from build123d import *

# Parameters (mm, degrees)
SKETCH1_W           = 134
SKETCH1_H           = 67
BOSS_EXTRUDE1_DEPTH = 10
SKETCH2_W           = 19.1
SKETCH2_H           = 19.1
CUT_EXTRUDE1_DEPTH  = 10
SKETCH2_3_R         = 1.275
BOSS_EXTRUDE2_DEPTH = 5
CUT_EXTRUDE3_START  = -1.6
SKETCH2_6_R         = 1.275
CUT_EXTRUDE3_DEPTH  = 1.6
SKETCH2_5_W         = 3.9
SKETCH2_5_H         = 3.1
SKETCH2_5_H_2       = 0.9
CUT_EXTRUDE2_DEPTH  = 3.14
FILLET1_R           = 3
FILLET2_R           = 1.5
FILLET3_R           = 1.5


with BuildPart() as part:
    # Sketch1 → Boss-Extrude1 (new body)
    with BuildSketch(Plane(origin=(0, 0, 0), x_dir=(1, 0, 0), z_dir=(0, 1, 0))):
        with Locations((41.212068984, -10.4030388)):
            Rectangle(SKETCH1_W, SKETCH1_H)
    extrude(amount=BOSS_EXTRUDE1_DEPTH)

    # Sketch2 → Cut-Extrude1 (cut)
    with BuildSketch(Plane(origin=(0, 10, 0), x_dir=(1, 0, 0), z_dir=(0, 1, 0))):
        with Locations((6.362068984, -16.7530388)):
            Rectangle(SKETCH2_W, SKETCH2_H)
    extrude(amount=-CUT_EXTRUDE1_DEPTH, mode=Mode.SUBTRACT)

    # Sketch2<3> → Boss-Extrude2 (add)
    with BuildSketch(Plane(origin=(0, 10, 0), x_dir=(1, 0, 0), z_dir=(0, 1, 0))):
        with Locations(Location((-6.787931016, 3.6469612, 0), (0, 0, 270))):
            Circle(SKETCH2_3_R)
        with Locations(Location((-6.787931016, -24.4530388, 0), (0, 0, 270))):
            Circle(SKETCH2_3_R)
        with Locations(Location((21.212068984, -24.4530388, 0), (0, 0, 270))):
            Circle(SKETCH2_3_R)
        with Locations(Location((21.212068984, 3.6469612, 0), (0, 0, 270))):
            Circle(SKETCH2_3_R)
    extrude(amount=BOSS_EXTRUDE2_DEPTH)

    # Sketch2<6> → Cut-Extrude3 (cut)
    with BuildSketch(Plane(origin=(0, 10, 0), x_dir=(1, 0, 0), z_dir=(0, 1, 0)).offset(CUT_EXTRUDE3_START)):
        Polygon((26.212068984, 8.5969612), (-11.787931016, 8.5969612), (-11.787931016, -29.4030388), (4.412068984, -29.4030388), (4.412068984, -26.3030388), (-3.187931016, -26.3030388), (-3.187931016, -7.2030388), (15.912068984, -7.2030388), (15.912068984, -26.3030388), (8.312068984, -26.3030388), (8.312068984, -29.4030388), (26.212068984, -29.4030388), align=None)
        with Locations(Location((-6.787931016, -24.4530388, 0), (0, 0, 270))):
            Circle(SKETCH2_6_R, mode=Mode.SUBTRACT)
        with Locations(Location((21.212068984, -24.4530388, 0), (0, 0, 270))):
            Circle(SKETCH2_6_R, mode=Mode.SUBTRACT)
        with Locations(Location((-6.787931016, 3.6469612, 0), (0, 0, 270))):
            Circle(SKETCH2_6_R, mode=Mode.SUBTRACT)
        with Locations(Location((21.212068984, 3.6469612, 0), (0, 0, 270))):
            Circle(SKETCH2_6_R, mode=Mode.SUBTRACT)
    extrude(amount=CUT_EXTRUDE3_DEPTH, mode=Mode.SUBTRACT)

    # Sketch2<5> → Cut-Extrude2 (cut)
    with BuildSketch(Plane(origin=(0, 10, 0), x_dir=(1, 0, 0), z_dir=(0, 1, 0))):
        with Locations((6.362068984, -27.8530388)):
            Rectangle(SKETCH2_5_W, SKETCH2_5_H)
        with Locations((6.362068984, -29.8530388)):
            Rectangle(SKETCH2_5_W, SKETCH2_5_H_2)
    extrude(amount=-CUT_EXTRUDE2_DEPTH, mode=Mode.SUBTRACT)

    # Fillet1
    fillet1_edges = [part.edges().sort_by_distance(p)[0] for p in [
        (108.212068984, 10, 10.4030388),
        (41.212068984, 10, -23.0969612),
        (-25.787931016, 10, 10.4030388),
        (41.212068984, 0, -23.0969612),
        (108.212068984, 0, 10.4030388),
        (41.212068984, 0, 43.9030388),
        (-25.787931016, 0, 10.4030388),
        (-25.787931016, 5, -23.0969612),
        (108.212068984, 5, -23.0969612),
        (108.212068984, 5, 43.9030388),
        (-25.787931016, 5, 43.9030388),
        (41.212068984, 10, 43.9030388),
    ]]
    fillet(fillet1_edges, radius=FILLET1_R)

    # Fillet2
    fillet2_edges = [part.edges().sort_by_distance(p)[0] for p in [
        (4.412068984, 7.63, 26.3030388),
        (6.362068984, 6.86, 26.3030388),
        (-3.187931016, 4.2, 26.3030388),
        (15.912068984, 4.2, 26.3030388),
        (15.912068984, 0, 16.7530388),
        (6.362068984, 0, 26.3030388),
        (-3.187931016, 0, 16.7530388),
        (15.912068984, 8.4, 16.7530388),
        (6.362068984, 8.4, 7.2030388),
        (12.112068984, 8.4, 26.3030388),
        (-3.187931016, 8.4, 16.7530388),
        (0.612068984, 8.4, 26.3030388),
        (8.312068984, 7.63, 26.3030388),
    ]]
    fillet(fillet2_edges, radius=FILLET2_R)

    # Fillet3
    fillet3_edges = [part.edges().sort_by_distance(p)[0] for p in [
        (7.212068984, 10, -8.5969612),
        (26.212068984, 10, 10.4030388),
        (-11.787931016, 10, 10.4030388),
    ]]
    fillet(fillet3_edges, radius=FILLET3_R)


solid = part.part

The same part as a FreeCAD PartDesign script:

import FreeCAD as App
import Part
import Sketcher
from FreeCAD import Vector
Q = App.Units.Quantity


def edges_at(feature, points):
    """Names of the edges that pass closest to the given points."""
    edges = feature.Shape.Edges
    near = lambda p: min(range(len(edges)), key=lambda i: edges[i].distToShape(Part.Vertex(*p))[0])
    return sorted({f"Edge{near(p) + 1}" for p in points})


def add_polygon(sketch, points):
    """Adds a closed chain of lines whose ends are joined by coincident constraints."""
    first, n = sketch.GeometryCount, len(points)
    for a, b in zip(points, points[1:] + points[:1]):
        sketch.addGeometry(Part.LineSegment(App.Vector(*a, 0), App.Vector(*b, 0)), False)
    for i in range(n):
        sketch.addConstraint(Sketcher.Constraint("Coincident", first + i, 2, first + (i + 1) % n, 1))

doc = App.newDocument("Part")
params = doc.addObject("Spreadsheet::Sheet", "Params")
for row, (alias, value) in enumerate([
    ("sketch1_width", "134 mm"),
    ("sketch1_height", "67 mm"),
    ("pad1_length", "10 mm"),
    ("sketch2_width", "19.1 mm"),
    ("pocket1_length", "10 mm"),
    ("sketch3_diameter", "2.55 mm"),
    ("pad2_length", "5 mm"),
    ("sketch4_diameter", "2.55 mm"),
    ("sketch4_width", "38 mm"),
    ("sketch4_width2", "16.2 mm"),
    ("sketch4_width3", "7.6 mm"),
    ("sketch4_width4", "19.1 mm"),
    ("pocket2_length", "1.6 mm"),
    ("sketch5_height", "4 mm"),
    ("sketch5_width", "3.9 mm"),
    ("pocket3_length", "3.14 mm"),
    ("fillet_radius", "3 mm"),
    ("fillet2_radius", "1.5 mm"),
    ("fillet3_radius", "1.5 mm"),
], start=1):
    params.set(f"A{row}", alias)
    params.set(f"B{row}", "=" + value)
    params.setAlias(f"B{row}", alias)

body = doc.addObject("PartDesign::Body", "Body")

sketch1 = body.newObject("Sketcher::SketchObject", "Sketch")
sketch1.AttachmentSupport = (doc.getObject("XZ_Plane"), [""])
sketch1.MapMode = "FlatFace"
add_polygon(sketch1, [(-26, -23), (-26, 44), (108, 44), (108, -23)])
sketch1.addConstraint([
    Sketcher.Constraint("Vertical", 0),
    Sketcher.Constraint("Horizontal", 1),
    Sketcher.Constraint("Vertical", 2),
    Sketcher.Constraint("Horizontal", 3),
    Sketcher.Constraint("DistanceX", 1, 1, 1, 2, Q("134 mm")),
    Sketcher.Constraint("DistanceY", 0, 1, 0, 2, Q("67 mm")),
    Sketcher.Constraint("DistanceX", 0, 2, -1, 1, Q("25.787931 mm")),
    Sketcher.Constraint("DistanceY", -1, 1, 0, 2, Q("43.903039 mm")),
])
sketch1.setExpression("Constraints[8]", "Params.sketch1_width")
sketch1.setExpression("Constraints[9]", "Params.sketch1_height")
pad1 = body.newObject("PartDesign::Pad", "Pad")
pad1.Profile = sketch1
pad1.setExpression("Length", "Params.pad1_length")
pad1.Reversed = True

sketch2 = body.newObject("Sketcher::SketchObject", "Sketch001")
sketch2.AttachmentSupport = (doc.getObject("XZ_Plane"), [""])
sketch2.MapMode = "FlatFace"
sketch2.AttachmentOffset = App.Placement(Vector(0, 0, -10), App.Rotation())
add_polygon(sketch2, [(-3, 7), (-3, 26), (16, 26), (16, 7)])
sketch2.addConstraint([
    Sketcher.Constraint("Vertical", 0),
    Sketcher.Constraint("Horizontal", 1),
    Sketcher.Constraint("Vertical", 2),
    Sketcher.Constraint("Horizontal", 3),
    Sketcher.Constraint("Equal", 3, 0),
    Sketcher.Constraint("DistanceX", 1, 1, 1, 2, Q("19.1 mm")),
    Sketcher.Constraint("DistanceX", 0, 2, -1, 1, Q("3.187931 mm")),
    Sketcher.Constraint("DistanceY", -1, 1, 0, 2, Q("26.303039 mm")),
])
sketch2.setExpression("Constraints[9]", "Params.sketch2_width")
pocket1 = body.newObject("PartDesign::Pocket", "Pocket")
pocket1.Profile = sketch2
pocket1.setExpression("Length", "Params.pocket1_length")
pocket1.Reversed = True

sketch3 = body.newObject("Sketcher::SketchObject", "Sketch002")
sketch3.AttachmentSupport = (doc.getObject("XZ_Plane"), [""])
sketch3.MapMode = "FlatFace"
sketch3.AttachmentOffset = App.Placement(Vector(0, 0, -10), App.Rotation())
sketch3.addGeometry([
    Part.Circle(Vector(-6.8, -3.6, 0), Vector(0, 0, 1), 1.3),
    Part.Circle(Vector(-6.8, 24.5, 0), Vector(0, 0, 1), 1.3),
    Part.Circle(Vector(21.2, 24.5, 0), Vector(0, 0, 1), 1.3),
    Part.Circle(Vector(21.2, -3.6, 0), Vector(0, 0, 1), 1.3),
], False)
sketch3.addConstraint([
    Sketcher.Constraint("Equal", 0, 1),
    Sketcher.Constraint("Equal", 1, 2),
    Sketcher.Constraint("Equal", 2, 3),
    Sketcher.Constraint("Horizontal", 1, 3, 2, 3),
    Sketcher.Constraint("Horizontal", 0, 3, 3, 3),
    Sketcher.Constraint("Vertical", 0, 3, 1, 3),
    Sketcher.Constraint("Vertical", 2, 3, 3, 3),
    Sketcher.Constraint("Diameter", 0, Q("2.55 mm")),
    Sketcher.Constraint("DistanceX", 1, 3, 2, 3, Q("28 mm")),
    Sketcher.Constraint("DistanceY", 0, 3, 1, 3, Q("28.1 mm")),
    Sketcher.Constraint("DistanceX", 0, 3, -1, 1, Q("6.787931 mm")),
    Sketcher.Constraint("DistanceY", 0, 3, -1, 1, Q("3.646961 mm")),
])
sketch3.setExpression("Constraints[7]", "Params.sketch3_diameter")
pad2 = body.newObject("PartDesign::Pad", "Pad001")
pad2.Profile = sketch3
pad2.setExpression("Length", "Params.pad2_length")
pad2.Reversed = True

sketch4 = body.newObject("Sketcher::SketchObject", "Sketch003")
sketch4.AttachmentSupport = (doc.getObject("XZ_Plane"), [""])
sketch4.MapMode = "FlatFace"
sketch4.AttachmentOffset = App.Placement(Vector(0, 0, -8.4), App.Rotation())
add_polygon(sketch4, [(26.2, -8.6), (-11.8, -8.6), (-11.8, 29.4), (4.4, 29.4), (4.4, 26.3), (-3.2, 26.3), (-3.2, 7.2), (15.9, 7.2), (15.9, 26.3), (8.3, 26.3), (8.3, 29.4), (26.2, 29.4)])
sketch4.addGeometry(Part.Circle(Vector(-6.8, 24.5, 0), Vector(0, 0, 1), 1.3), False)
sketch4.addGeometry(Part.Circle(Vector(21.2, 24.5, 0), Vector(0, 0, 1), 1.3), False)
sketch4.addGeometry(Part.Circle(Vector(-6.8, -3.6, 0), Vector(0, 0, 1), 1.3), False)
sketch4.addGeometry(Part.Circle(Vector(21.2, -3.6, 0), Vector(0, 0, 1), 1.3), False)
sketch4.addConstraint([
    Sketcher.Constraint("Horizontal", 0),
    Sketcher.Constraint("Vertical", 1),
    Sketcher.Constraint("Horizontal", 2),
    Sketcher.Constraint("Vertical", 3),
    Sketcher.Constraint("Horizontal", 4),
    Sketcher.Constraint("Vertical", 5),
    Sketcher.Constraint("Horizontal", 6),
    Sketcher.Constraint("Vertical", 7),
    Sketcher.Constraint("Horizontal", 8),
    Sketcher.Constraint("Vertical", 9),
    Sketcher.Constraint("Horizontal", 10),
    Sketcher.Constraint("Vertical", 11),
    Sketcher.Constraint("Equal", 12, 13),
    Sketcher.Constraint("Equal", 13, 14),
    Sketcher.Constraint("Equal", 14, 15),
    Sketcher.Constraint("Horizontal", 12, 3, 13, 3),
    Sketcher.Constraint("Horizontal", 14, 3, 15, 3),
    Sketcher.Constraint("Horizontal", 4, 2, 7, 2),
    Sketcher.Constraint("Horizontal", 2, 2, 9, 2),
    Sketcher.Constraint("Vertical", 12, 3, 14, 3),
    Sketcher.Constraint("Vertical", 13, 3, 15, 3),
    Sketcher.Constraint("Equal", 4, 8),
    Sketcher.Constraint("Equal", 0, 1),
    Sketcher.Constraint("Equal", 6, 5),
    Sketcher.Constraint("Diameter", 12, Q("2.55 mm")),
    Sketcher.Constraint("DistanceX", 0, 2, 0, 1, Q("38 mm")),
    Sketcher.Constraint("DistanceX", 2, 1, 2, 2, Q("16.2 mm")),
    Sketcher.Constraint("DistanceX", 4, 2, 4, 1, Q("7.6 mm")),
    Sketcher.Constraint("DistanceX", 6, 1, 6, 2, Q("19.1 mm")),
    Sketcher.Constraint("DistanceY", 3, 2, 3, 1, Q("3.1 mm")),
    Sketcher.Constraint("DistanceX", 12, 3, 13, 3, Q("28 mm")),
    Sketcher.Constraint("DistanceX", 0, 2, 14, 3, Q("5 mm")),
    Sketcher.Constraint("DistanceY", 14, 3, 12, 3, Q("28.1 mm")),
    Sketcher.Constraint("DistanceY", 0, 2, 14, 3, Q("4.95 mm")),
    Sketcher.Constraint("DistanceX", 12, 3, -1, 1, Q("6.787931 mm")),
    Sketcher.Constraint("DistanceY", -1, 1, 12, 3, Q("24.453039 mm")),
])
sketch4.setExpression("Constraints[36]", "Params.sketch4_diameter")
sketch4.setExpression("Constraints[37]", "Params.sketch4_width")
sketch4.setExpression("Constraints[38]", "Params.sketch4_width2")
sketch4.setExpression("Constraints[39]", "Params.sketch4_width3")
sketch4.setExpression("Constraints[40]", "Params.sketch4_width4")
pocket2 = body.newObject("PartDesign::Pocket", "Pocket001")
pocket2.Profile = sketch4
pocket2.setExpression("Length", "Params.pocket2_length")

sketch5 = body.newObject("Sketcher::SketchObject", "Sketch004")
sketch5.AttachmentSupport = (doc.getObject("XZ_Plane"), [""])
sketch5.MapMode = "FlatFace"
sketch5.AttachmentOffset = App.Placement(Vector(0, 0, -10), App.Rotation())
add_polygon(sketch5, [(4.4, 26.3), (4.4, 30.3), (8.3, 30.3), (8.3, 26.3)])
sketch5.addConstraint([
    Sketcher.Constraint("Vertical", 0),
    Sketcher.Constraint("Horizontal", 1),
    Sketcher.Constraint("Vertical", 2),
    Sketcher.Constraint("Horizontal", 3),
    Sketcher.Constraint("DistanceY", 0, 1, 0, 2, Q("4 mm")),
    Sketcher.Constraint("DistanceX", 1, 1, 1, 2, Q("3.9 mm")),
    Sketcher.Constraint("DistanceX", -1, 1, 0, 2, Q("4.412069 mm")),
    Sketcher.Constraint("DistanceY", -1, 1, 0, 2, Q("30.303039 mm")),
])
sketch5.setExpression("Constraints[8]", "Params.sketch5_height")
sketch5.setExpression("Constraints[9]", "Params.sketch5_width")
pocket3 = body.newObject("PartDesign::Pocket", "Pocket002")
pocket3.Profile = sketch5
pocket3.setExpression("Length", "Params.pocket3_length")
pocket3.Reversed = True
doc.recompute()

fillet = body.newObject("PartDesign::Fillet", "Fillet")
fillet.Base = (pocket3, edges_at(pocket3, [
    (108.212, 10, 10.403),
    (41.212, 10, -23.097),
    (-25.788, 10, 10.403),
    (41.212, 0, -23.097),
    (108.212, 0, 10.403),
    (41.212, 0, 43.903),
    (-25.788, 0, 10.403),
    (-25.788, 5, -23.097),
    (108.212, 5, -23.097),
    (108.212, 5, 43.903),
    (-25.788, 5, 43.903),
    (41.212, 10, 43.903),
]))
fillet.setExpression("Radius", "Params.fillet_radius")
doc.recompute()

fillet2 = body.newObject("PartDesign::Fillet", "Fillet001")
fillet2.Base = (fillet, edges_at(fillet, [
    (4.412, 7.63, 26.303),
    (6.362, 6.86, 26.303),
    (-3.188, 4.2, 26.303),
    (15.912, 4.2, 26.303),
    (15.912, 0, 16.753),
    (6.362, 0, 26.303),
    (-3.188, 0, 16.753),
    (15.912, 8.4, 16.753),
    (6.362, 8.4, 7.203),
    (12.112, 8.4, 26.303),
    (-3.188, 8.4, 16.753),
    (0.612, 8.4, 26.303),
    (8.312, 7.63, 26.303),
]))
fillet2.setExpression("Radius", "Params.fillet2_radius")
doc.recompute()

fillet3 = body.newObject("PartDesign::Fillet", "Fillet002")
fillet3.Base = (fillet2, edges_at(fillet2, [(7.212, 10, -8.597), (26.212, 10, 10.403), (-11.788, 10, 10.403)]))
fillet3.setExpression("Radius", "Params.fillet3_radius")

doc.recompute()
